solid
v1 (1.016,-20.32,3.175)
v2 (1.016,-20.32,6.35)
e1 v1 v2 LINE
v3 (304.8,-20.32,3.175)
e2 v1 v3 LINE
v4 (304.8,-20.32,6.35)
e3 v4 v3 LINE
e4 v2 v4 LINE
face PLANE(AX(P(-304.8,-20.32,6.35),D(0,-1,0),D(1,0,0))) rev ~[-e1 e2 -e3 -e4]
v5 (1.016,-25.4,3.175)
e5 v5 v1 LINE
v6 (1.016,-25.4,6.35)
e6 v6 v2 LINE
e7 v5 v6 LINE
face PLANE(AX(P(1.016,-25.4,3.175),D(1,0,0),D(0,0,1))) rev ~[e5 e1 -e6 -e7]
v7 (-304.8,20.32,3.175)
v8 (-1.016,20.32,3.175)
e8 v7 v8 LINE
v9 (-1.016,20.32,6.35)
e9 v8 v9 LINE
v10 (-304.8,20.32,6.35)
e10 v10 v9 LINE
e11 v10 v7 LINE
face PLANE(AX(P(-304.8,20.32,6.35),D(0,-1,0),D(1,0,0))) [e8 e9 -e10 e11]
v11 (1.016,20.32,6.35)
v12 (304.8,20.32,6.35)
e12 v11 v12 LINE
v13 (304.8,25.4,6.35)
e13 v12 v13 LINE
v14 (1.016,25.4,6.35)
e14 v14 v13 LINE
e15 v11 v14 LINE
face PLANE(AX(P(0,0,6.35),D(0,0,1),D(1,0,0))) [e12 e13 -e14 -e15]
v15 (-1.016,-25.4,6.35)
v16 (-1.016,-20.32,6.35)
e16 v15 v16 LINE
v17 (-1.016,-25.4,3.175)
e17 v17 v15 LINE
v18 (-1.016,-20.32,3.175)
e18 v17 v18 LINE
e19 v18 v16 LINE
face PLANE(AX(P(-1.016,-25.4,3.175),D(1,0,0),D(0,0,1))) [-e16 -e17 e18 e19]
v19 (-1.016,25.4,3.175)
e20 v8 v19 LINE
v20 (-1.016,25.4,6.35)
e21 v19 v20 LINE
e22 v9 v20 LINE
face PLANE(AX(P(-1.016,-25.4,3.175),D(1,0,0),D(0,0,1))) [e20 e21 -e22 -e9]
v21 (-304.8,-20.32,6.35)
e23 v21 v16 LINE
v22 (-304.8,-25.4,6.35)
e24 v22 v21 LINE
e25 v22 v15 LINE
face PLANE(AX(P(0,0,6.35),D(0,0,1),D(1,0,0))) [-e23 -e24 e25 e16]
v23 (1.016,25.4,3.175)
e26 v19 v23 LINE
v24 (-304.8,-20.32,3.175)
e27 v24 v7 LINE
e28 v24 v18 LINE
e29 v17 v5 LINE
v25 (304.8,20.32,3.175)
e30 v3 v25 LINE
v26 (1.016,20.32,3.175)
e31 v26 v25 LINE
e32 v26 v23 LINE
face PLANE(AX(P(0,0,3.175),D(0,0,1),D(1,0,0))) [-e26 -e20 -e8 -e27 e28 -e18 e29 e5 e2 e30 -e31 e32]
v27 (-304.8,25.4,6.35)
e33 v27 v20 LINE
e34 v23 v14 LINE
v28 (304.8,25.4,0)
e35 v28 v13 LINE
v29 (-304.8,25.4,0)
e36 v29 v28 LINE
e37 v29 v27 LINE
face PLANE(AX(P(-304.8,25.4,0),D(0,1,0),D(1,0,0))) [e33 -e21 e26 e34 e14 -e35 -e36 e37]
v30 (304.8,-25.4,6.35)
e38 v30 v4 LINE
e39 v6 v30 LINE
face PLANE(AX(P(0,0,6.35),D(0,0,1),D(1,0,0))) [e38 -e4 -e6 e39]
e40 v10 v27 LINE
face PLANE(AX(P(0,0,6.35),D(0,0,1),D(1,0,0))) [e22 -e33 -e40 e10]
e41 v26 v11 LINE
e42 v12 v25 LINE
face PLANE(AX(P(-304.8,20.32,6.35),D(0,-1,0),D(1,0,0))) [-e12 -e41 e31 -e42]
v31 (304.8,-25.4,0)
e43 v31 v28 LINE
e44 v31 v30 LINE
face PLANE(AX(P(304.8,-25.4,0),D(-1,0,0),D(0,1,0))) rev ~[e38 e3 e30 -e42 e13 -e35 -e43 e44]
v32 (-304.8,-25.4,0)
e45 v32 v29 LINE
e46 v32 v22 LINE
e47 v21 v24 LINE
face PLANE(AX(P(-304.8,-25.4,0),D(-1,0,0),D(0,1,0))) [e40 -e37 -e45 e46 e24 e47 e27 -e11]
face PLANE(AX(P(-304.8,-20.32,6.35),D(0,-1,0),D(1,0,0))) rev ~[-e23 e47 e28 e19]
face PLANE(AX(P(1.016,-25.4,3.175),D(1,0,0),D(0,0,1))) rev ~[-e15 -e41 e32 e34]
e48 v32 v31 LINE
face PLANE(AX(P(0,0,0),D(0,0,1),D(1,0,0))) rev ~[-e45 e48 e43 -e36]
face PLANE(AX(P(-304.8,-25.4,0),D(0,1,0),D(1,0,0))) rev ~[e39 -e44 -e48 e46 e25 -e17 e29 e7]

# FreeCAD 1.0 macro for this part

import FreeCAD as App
import Part
import Sketcher

V = App.Vector
Q = App.Units.Quantity

doc = App.newDocument("Part")
body = doc.addObject("PartDesign::Body", "Body")

# Sketch on XY plane
sketch1 = doc.addObject("Sketcher::SketchObject", "Sketch")
body.addObject(sketch1)
sketch1.AttachmentSupport = (doc.XY_Plane, [""])
sketch1.MapMode = "FlatFace"
sketch1.addGeometry([
    Part.LineSegment(V(-305, 25, 0), V(-305, -25, 0)),
    Part.LineSegment(V(-305, -25, 0), V(305, -25, 0)),
    Part.LineSegment(V(305, -25, 0), V(305, 25, 0)),
    Part.LineSegment(V(305, 25, 0), V(-305, 25, 0)),
], False)
sketch1.addConstraint([
    Sketcher.Constraint("Coincident", 0, 2, 1, 1),
    Sketcher.Constraint("Coincident", 1, 2, 2, 1),
    Sketcher.Constraint("Coincident", 2, 2, 3, 1),
    Sketcher.Constraint("Coincident", 3, 2, 0, 1),
    Sketcher.Constraint("Vertical", 0),
    Sketcher.Constraint("Horizontal", 1),
    Sketcher.Constraint("Vertical", 2),
    Sketcher.Constraint("Horizontal", 3),
    Sketcher.Constraint("Symmetric", 0, 2, 2, 2, -1, 1),
    Sketcher.Constraint("DistanceX", 1, 1, 1, 2, Q("24 in")),
    Sketcher.Constraint("DistanceY", 0, 2, 0, 1, Q("2 in")),
])
pad1 = doc.addObject("PartDesign::Pad", "Pad")
body.addObject(pad1)
pad1.Profile = sketch1
pad1.Length = Q("0.25 in")

# Sketch on XY plane
sketch2 = doc.addObject("Sketcher::SketchObject", "Sketch001")
body.addObject(sketch2)
sketch2.AttachmentSupport = (doc.XY_Plane, [""])
sketch2.MapMode = "FlatFace"
sketch2.AttachmentOffset = App.Placement(V(0, 0, 0.25 * 25.4), App.Rotation())
sketch2.addGeometry([
    Part.LineSegment(V(-305, 20, 0), V(-305, -20, 0)),
    Part.LineSegment(V(-305, -20, 0), V(305, -20, 0)),
    Part.LineSegment(V(305, -20, 0), V(305, 20, 0)),
    Part.LineSegment(V(305, 20, 0), V(-305, 20, 0)),
], False)
sketch2.addConstraint([
    Sketcher.Constraint("Coincident", 0, 2, 1, 1),
    Sketcher.Constraint("Coincident", 1, 2, 2, 1),
    Sketcher.Constraint("Coincident", 2, 2, 3, 1),
    Sketcher.Constraint("Coincident", 3, 2, 0, 1),
    Sketcher.Constraint("Vertical", 0),
    Sketcher.Constraint("Horizontal", 1),
    Sketcher.Constraint("Vertical", 2),
    Sketcher.Constraint("Horizontal", 3),
    Sketcher.Constraint("Symmetric", 0, 2, 2, 2, -1, 1),
    Sketcher.Constraint("DistanceX", 1, 1, 1, 2, Q("24 in")),
    Sketcher.Constraint("DistanceY", 0, 2, 0, 1, Q("1.6 in")),
])
pocket1 = doc.addObject("PartDesign::Pocket", "Pocket")
body.addObject(pocket1)
pocket1.Profile = sketch2
pocket1.Length = Q("0.125 in")

# Sketch on XZ plane
sketch3 = doc.addObject("Sketcher::SketchObject", "Sketch002")
body.addObject(sketch3)
sketch3.AttachmentSupport = (doc.XZ_Plane, [""])
sketch3.MapMode = "FlatFace"
sketch3.AttachmentOffset = App.Placement(V(0, 0, 1 * 25.4), App.Rotation())
sketch3.addGeometry([
    Part.LineSegment(V(-1, 6.3, 0), V(-1, 3.2, 0)),
    Part.LineSegment(V(-1, 3.2, 0), V(1, 3.2, 0)),
    Part.LineSegment(V(1, 3.2, 0), V(1, 6.3, 0)),
    Part.LineSegment(V(1, 6.3, 0), V(-1, 6.3, 0)),
], False)
sketch3.addConstraint([
    Sketcher.Constraint("Coincident", 0, 2, 1, 1),
    Sketcher.Constraint("Coincident", 1, 2, 2, 1),
    Sketcher.Constraint("Coincident", 2, 2, 3, 1),
    Sketcher.Constraint("Coincident", 3, 2, 0, 1),
    Sketcher.Constraint("Vertical", 0),
    Sketcher.Constraint("Horizontal", 1),
    Sketcher.Constraint("Vertical", 2),
    Sketcher.Constraint("Horizontal", 3),
    Sketcher.Constraint("DistanceX", 1, 1, 1, 2, Q("0.08 in")),
    Sketcher.Constraint("DistanceY", 0, 2, 0, 1, Q("0.125 in")),
    Sketcher.Constraint("DistanceX", 0, 2, -1, 1, Q("0.04 in")),
    Sketcher.Constraint("DistanceY", -1, 1, 2, 2, Q("0.25 in")),
])
pocket2 = doc.addObject("PartDesign::Pocket", "Pocket001")
body.addObject(pocket2)
pocket2.Profile = sketch3
pocket2.Type = "ThroughAll"

doc.recompute()
